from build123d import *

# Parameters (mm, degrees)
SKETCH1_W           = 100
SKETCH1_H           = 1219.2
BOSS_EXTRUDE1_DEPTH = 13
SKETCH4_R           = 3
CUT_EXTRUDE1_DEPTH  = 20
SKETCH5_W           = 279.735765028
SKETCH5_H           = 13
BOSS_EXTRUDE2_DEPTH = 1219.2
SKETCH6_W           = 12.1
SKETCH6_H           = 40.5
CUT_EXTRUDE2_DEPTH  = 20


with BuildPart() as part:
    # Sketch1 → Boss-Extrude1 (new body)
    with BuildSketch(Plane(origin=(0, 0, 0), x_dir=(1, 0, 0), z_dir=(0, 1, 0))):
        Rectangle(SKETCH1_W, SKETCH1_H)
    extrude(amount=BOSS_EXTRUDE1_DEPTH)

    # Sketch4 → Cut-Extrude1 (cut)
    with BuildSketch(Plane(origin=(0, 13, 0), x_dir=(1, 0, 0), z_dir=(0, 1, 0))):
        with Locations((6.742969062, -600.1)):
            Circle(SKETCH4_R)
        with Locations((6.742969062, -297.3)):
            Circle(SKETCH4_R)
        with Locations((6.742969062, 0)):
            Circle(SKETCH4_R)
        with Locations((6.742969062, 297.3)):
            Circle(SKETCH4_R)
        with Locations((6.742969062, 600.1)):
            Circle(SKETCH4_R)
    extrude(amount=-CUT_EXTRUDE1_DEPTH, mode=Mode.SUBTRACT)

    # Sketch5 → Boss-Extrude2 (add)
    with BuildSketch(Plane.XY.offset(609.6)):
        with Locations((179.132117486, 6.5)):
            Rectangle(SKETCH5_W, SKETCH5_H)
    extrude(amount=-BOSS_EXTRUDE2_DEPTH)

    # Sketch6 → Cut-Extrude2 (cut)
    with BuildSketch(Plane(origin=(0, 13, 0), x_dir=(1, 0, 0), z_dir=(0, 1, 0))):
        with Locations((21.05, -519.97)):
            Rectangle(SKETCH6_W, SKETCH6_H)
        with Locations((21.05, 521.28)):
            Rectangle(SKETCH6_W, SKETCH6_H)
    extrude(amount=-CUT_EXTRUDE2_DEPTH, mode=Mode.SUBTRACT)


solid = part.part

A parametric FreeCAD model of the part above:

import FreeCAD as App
import Part
import Sketcher
from FreeCAD import Vector
Q = App.Units.Quantity

doc = App.newDocument("Part")
body = doc.addObject("PartDesign::Body", "Body")

sketch1 = body.newObject("Sketcher::SketchObject", "Sketch")
sketch1.AttachmentSupport = (doc.getObject("XZ_Plane"), [""])
sketch1.MapMode = "FlatFace"
sketch1.addGeometry([
    Part.LineSegment(Vector(-50, -609.6, 0), Vector(-50, 609.6, 0)),
    Part.LineSegment(Vector(-50, 609.6, 0), Vector(50, 609.6, 0)),
    Part.LineSegment(Vector(50, 609.6, 0), Vector(50, -609.6, 0)),
    Part.LineSegment(Vector(50, -609.6, 0), Vector(-50, -609.6, 0)),
], False)
sketch1.addConstraint([
    Sketcher.Constraint("Coincident", 0, 2, 1, 1),
    Sketcher.Constraint("Coincident", 1, 2, 2, 1),
    Sketcher.Constraint("Coincident", 2, 2, 3, 1),
    Sketcher.Constraint("Coincident", 3, 2, 0, 1),
    Sketcher.Constraint("Vertical", 0),
    Sketcher.Constraint("Horizontal", 1),
    Sketcher.Constraint("Vertical", 2),
    Sketcher.Constraint("Horizontal", 3),
    Sketcher.Constraint("Symmetric", 0, 2, 2, 2, -1, 1),
    Sketcher.Constraint("DistanceX", 1, 1, 1, 2, Q("100 mm")),
    Sketcher.Constraint("DistanceY", 0, 1, 0, 2, Q("1219.2 mm")),
])
pad1 = body.newObject("PartDesign::Pad", "Pad")
pad1.Profile = sketch1
pad1.Length = 13
pad1.Reversed = True

sketch2 = body.newObject("Sketcher::SketchObject", "Sketch001")
sketch2.AttachmentSupport = (doc.getObject("XZ_Plane"), [""])
sketch2.MapMode = "FlatFace"
sketch2.AttachmentOffset = App.Placement(Vector(0, 0, -13), App.Rotation())
sketch2.addGeometry([
    Part.Circle(Vector(6.742969, 600.1, 0), Vector(0, 0, 1), 3),
    Part.Circle(Vector(6.742969, 297.3, 0), Vector(0, 0, 1), 3),
    Part.Circle(Vector(6.742969, 0, 0), Vector(0, 0, 1), 3),
    Part.Circle(Vector(6.742969, -297.3, 0), Vector(0, 0, 1), 3),
    Part.Circle(Vector(6.742969, -600.1, 0), Vector(0, 0, 1), 3),
], False)
sketch2.addConstraint([
    Sketcher.Constraint("Equal", 0, 1),
    Sketcher.Constraint("Equal", 1, 2),
    Sketcher.Constraint("Equal", 2, 3),
    Sketcher.Constraint("Equal", 3, 4),
    Sketcher.Constraint("Symmetric", 1, 3, 3, 3, -1),
    Sketcher.Constraint("Symmetric", 0, 3, 4, 3, -1),
    Sketcher.Constraint("PointOnObject", 2, 3, -1),
    Sketcher.Constraint("Vertical", 0, 3, 1, 3),
    Sketcher.Constraint("Vertical", 1, 3, 2, 3),
    Sketcher.Constraint("Diameter", 0, Q("6 mm")),
    Sketcher.Constraint("DistanceY", -1, 1, 0, 3, Q("600.1 mm")),
    Sketcher.Constraint("DistanceY", -1, 1, 1, 3, Q("297.3 mm")),
    Sketcher.Constraint("DistanceX", -1, 1, 0, 3, Q("6.742969 mm")),
])
pocket1 = body.newObject("PartDesign::Pocket", "Pocket")
pocket1.Profile = sketch2
pocket1.Length = 20
pocket1.Reversed = True

sketch3 = body.newObject("Sketcher::SketchObject", "Sketch002")
sketch3.AttachmentSupport = (doc.getObject("XY_Plane"), [""])
sketch3.MapMode = "FlatFace"
sketch3.AttachmentOffset = App.Placement(Vector(0, 0, 609.6), App.Rotation())
sketch3.addGeometry([
    Part.LineSegment(Vector(39.264235, 13, 0), Vector(39.264235, 0, 0)),
    Part.LineSegment(Vector(39.264235, 0, 0), Vector(319, 0, 0)),
    Part.LineSegment(Vector(319, 0, 0), Vector(319, 13, 0)),
    Part.LineSegment(Vector(319, 13, 0), Vector(39.264235, 13, 0)),
], False)
sketch3.addConstraint([
    Sketcher.Constraint("Coincident", 0, 2, 1, 1),
    Sketcher.Constraint("Coincident", 1, 2, 2, 1),
    Sketcher.Constraint("Coincident", 2, 2, 3, 1),
    Sketcher.Constraint("Coincident", 3, 2, 0, 1),
    Sketcher.Constraint("Vertical", 0),
    Sketcher.Constraint("Horizontal", 1),
    Sketcher.Constraint("Vertical", 2),
    Sketcher.Constraint("Horizontal", 3),
    Sketcher.Constraint("PointOnObject", 0, 2, -1),
    Sketcher.Constraint("DistanceY", 0, 2, 0, 1, Q("13 mm")),
    Sketcher.Constraint("DistanceX", -1, 1, 1, 2, Q("319 mm")),
    Sketcher.Constraint("DistanceX", 1, 1, 1, 2, Q("279.735765 mm")),
])
pad2 = body.newObject("PartDesign::Pad", "Pad001")
pad2.Profile = sketch3
pad2.Length = 1219.2
pad2.Reversed = True

sketch4 = body.newObject("Sketcher::SketchObject", "Sketch003")
sketch4.AttachmentSupport = (doc.getObject("XZ_Plane"), [""])
sketch4.MapMode = "FlatFace"
sketch4.AttachmentOffset = App.Placement(Vector(0, 0, -13), App.Rotation())
sketch4.addGeometry([
    Part.LineSegment(Vector(15, 499.72, 0), Vector(15, 540.22, 0)),
    Part.LineSegment(Vector(15, 540.22, 0), Vector(27.1, 540.22, 0)),
    Part.LineSegment(Vector(27.1, 540.22, 0), Vector(27.1, 499.72, 0)),
    Part.LineSegment(Vector(27.1, 499.72, 0), Vector(15, 499.72, 0)),
    Part.LineSegment(Vector(15, -541.53, 0), Vector(15, -501.03, 0)),
    Part.LineSegment(Vector(15, -501.03, 0), Vector(27.1, -501.03, 0)),
    Part.LineSegment(Vector(27.1, -501.03, 0), Vector(27.1, -541.53, 0)),
    Part.LineSegment(Vector(27.1, -541.53, 0), Vector(15, -541.53, 0)),
], False)
sketch4.addConstraint([
    Sketcher.Constraint("Coincident", 0, 2, 1, 1),
    Sketcher.Constraint("Coincident", 1, 2, 2, 1),
    Sketcher.Constraint("Coincident", 2, 2, 3, 1),
    Sketcher.Constraint("Coincident", 3, 2, 0, 1),
    Sketcher.Constraint("Coincident", 4, 2, 5, 1),
    Sketcher.Constraint("Coincident", 5, 2, 6, 1),
    Sketcher.Constraint("Coincident", 6, 2, 7, 1),
    Sketcher.Constraint("Coincident", 7, 2, 4, 1),
    Sketcher.Constraint("Vertical", 0),
    Sketcher.Constraint("Horizontal", 1),
    Sketcher.Constraint("Vertical", 2),
    Sketcher.Constraint("Horizontal", 3),
    Sketcher.Constraint("Vertical", 4),
    Sketcher.Constraint("Horizontal", 5),
    Sketcher.Constraint("Vertical", 6),
    Sketcher.Constraint("Horizontal", 7),
    Sketcher.Constraint("Vertical", 3, 2, 4, 2),
    Sketcher.Constraint("Vertical", 2, 2, 5, 2),
    Sketcher.Constraint("Equal", 2, 4),
    Sketcher.Constraint("DistanceX", 1, 1, 1, 2, Q("12.1 mm")),
    Sketcher.Constraint("DistanceY", 0, 1, 0, 2, Q("40.5 mm")),
    Sketcher.Constraint("DistanceX", -1, 1, 0, 2, Q("15 mm")),
    Sketcher.Constraint("DistanceY", -1, 1, 0, 2, Q("540.22 mm")),
    Sketcher.Constraint("DistanceY", 4, 2, -1, 1, Q("501.03 mm")),
])
pocket2 = body.newObject("PartDesign::Pocket", "Pocket001")
pocket2.Profile = sketch4
pocket2.Length = 20
pocket2.Reversed = True

doc.recompute()
